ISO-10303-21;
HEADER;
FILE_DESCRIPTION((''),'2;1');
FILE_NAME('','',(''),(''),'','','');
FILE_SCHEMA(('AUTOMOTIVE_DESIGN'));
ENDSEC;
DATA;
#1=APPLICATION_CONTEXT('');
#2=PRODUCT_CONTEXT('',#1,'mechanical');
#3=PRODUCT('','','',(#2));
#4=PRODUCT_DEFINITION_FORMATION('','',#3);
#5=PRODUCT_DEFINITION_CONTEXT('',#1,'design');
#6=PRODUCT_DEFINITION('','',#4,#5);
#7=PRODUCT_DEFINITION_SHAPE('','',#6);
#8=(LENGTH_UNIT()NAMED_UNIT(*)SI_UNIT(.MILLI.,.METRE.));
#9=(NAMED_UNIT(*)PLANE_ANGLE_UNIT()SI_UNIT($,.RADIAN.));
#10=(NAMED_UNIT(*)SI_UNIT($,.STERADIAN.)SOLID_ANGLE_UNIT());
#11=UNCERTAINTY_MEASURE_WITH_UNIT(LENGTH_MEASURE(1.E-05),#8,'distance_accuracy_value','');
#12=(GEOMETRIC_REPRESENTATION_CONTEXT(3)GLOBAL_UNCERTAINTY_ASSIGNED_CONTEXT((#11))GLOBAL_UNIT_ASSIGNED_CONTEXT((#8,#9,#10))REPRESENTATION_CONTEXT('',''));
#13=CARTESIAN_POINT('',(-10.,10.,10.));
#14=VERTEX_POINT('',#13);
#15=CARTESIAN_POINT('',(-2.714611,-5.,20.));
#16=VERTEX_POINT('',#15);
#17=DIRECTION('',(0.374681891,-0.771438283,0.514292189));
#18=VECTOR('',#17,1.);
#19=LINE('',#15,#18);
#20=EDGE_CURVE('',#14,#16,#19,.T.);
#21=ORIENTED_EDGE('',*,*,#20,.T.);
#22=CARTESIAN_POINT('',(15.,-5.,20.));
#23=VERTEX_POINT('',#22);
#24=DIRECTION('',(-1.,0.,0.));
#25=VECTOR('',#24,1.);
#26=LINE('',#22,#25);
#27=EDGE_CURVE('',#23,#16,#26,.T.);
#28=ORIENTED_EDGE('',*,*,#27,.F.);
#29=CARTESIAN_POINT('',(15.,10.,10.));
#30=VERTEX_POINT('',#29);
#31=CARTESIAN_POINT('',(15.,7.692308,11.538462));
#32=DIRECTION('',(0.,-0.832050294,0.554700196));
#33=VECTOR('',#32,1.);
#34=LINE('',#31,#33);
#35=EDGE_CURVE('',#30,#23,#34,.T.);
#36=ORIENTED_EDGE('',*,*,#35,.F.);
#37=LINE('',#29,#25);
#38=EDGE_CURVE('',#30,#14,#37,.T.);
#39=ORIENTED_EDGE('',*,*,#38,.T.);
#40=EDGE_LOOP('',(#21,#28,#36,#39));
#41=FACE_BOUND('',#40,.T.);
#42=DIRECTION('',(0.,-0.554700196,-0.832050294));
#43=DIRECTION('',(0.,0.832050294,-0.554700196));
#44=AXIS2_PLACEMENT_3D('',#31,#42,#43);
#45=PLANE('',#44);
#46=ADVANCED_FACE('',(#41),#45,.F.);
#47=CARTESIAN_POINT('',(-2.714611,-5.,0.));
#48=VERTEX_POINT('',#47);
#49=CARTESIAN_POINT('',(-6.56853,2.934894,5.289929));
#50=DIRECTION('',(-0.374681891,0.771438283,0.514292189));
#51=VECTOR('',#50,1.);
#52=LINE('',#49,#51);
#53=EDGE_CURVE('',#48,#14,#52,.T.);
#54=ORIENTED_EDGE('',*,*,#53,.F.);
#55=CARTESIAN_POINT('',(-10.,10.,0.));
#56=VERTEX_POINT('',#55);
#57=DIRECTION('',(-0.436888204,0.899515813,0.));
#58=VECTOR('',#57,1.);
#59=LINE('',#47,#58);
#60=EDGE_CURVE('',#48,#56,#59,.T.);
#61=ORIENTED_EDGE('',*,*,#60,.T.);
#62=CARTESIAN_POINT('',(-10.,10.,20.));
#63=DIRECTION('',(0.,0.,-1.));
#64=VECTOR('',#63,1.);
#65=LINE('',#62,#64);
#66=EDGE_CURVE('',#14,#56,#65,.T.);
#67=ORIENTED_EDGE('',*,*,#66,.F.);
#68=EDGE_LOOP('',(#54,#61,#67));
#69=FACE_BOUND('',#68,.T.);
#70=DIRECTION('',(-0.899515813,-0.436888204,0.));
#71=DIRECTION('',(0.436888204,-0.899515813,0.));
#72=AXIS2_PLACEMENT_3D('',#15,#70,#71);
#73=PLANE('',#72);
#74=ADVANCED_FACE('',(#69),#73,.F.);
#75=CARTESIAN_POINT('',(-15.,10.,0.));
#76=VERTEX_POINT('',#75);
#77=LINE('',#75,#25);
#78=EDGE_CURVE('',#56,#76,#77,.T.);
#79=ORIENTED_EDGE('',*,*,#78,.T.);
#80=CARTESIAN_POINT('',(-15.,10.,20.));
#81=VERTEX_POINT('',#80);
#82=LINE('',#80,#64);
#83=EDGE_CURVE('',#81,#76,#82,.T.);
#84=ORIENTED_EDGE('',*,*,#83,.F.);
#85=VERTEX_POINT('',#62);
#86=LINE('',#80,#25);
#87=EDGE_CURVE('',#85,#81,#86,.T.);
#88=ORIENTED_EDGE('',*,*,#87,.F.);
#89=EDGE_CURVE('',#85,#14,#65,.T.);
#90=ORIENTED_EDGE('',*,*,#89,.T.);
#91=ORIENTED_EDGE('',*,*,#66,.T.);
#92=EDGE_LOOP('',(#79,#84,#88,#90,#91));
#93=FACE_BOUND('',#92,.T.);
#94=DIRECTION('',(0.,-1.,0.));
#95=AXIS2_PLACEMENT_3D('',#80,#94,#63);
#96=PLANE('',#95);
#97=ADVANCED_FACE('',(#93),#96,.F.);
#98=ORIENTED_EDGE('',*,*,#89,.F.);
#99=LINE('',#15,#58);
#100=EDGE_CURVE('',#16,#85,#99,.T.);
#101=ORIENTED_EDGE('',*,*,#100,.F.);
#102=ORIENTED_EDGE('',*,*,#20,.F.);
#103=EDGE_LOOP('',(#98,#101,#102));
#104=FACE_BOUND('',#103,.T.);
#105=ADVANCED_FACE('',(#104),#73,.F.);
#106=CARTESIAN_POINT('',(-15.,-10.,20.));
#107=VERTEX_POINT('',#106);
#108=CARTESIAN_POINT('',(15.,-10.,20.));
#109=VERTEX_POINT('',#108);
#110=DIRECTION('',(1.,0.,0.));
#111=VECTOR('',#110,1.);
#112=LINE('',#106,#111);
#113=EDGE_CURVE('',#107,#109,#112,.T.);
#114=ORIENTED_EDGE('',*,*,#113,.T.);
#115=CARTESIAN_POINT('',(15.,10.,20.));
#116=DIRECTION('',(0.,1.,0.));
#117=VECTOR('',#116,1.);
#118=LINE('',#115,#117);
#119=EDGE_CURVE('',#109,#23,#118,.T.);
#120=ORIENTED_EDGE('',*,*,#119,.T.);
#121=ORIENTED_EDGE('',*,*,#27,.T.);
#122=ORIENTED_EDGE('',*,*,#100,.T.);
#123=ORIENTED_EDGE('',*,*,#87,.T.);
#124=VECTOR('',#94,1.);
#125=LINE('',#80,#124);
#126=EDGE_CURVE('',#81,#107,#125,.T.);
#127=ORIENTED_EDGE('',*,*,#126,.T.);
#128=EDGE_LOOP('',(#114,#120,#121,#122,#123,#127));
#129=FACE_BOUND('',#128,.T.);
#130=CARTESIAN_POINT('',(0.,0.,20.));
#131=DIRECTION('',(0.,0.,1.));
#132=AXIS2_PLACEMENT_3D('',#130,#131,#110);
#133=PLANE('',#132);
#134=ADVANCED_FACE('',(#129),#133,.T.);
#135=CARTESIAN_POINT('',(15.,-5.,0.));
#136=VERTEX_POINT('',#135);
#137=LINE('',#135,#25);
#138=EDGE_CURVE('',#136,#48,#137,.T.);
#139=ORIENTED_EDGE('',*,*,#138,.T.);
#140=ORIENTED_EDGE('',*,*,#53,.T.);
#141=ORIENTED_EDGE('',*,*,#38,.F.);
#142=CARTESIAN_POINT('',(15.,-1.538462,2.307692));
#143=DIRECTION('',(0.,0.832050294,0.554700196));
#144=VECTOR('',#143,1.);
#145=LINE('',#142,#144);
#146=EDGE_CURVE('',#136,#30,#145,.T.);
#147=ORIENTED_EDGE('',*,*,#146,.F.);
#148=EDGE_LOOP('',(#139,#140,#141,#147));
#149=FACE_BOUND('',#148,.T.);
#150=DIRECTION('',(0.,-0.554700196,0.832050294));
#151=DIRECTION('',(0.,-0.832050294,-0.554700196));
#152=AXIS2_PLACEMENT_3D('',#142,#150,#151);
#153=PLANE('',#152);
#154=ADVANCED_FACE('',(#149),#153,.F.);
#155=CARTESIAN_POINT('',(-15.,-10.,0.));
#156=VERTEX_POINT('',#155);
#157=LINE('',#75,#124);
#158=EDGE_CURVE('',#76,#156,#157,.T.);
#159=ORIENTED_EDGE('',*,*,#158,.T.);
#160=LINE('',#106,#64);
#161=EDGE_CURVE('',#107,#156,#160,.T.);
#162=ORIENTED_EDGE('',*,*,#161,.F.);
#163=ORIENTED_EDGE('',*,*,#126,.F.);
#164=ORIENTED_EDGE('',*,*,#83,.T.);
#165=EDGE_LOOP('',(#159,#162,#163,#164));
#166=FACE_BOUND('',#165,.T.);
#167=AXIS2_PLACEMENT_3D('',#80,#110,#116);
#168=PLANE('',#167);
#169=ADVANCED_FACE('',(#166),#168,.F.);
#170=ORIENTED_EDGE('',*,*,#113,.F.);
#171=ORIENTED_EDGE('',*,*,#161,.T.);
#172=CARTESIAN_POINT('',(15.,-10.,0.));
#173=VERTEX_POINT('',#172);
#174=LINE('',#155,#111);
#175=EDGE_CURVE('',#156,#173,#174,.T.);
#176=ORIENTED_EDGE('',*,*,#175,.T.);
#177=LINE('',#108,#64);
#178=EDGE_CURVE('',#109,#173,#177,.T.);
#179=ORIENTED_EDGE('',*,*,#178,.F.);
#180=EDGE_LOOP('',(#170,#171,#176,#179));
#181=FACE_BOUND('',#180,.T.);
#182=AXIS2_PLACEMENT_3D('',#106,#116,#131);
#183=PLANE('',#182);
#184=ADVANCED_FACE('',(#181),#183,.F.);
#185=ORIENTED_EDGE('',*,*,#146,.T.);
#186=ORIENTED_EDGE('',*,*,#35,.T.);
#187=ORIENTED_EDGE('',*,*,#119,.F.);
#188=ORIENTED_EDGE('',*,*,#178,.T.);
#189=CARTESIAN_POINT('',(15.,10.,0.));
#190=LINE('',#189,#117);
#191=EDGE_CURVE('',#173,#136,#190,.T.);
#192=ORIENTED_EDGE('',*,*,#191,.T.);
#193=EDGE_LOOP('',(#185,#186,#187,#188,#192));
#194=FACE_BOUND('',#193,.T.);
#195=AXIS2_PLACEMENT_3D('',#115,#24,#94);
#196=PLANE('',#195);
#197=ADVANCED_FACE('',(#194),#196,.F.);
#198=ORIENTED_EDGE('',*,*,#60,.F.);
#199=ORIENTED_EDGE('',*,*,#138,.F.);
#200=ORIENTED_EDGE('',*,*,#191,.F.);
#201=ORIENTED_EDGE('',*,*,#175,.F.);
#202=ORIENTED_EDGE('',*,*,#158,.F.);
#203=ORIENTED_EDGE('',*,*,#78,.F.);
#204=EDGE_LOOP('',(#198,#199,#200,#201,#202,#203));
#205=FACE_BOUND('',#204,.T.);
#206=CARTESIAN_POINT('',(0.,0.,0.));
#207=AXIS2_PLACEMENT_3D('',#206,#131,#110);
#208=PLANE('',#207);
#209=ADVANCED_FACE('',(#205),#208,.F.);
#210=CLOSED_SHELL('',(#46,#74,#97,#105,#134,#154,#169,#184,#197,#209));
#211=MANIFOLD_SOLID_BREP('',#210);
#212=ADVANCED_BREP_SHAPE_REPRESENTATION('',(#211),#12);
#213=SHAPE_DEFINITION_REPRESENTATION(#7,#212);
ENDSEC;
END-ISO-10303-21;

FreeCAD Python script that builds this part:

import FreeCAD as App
import Part
import Sketcher
Q = App.Units.Quantity

doc = App.newDocument("Part")
body = doc.addObject("PartDesign::Body", "Body")

# Sketch on XY plane
sketch1 = doc.addObject("Sketcher::SketchObject", "Sketch")
body.addObject(sketch1)
sketch1.AttachmentSupport = (doc.XY_Plane, [""])
sketch1.MapMode = "FlatFace"
sketch1.addGeometry([
    Part.LineSegment(App.Vector(-15, 10, 0), App.Vector(-15, -10, 0)),
    Part.LineSegment(App.Vector(-15, -10, 0), App.Vector(15, -10, 0)),
    Part.LineSegment(App.Vector(15, -10, 0), App.Vector(15, 10, 0)),
    Part.LineSegment(App.Vector(15, 10, 0), App.Vector(-15, 10, 0)),
], False)
sketch1.addConstraint([
    Sketcher.Constraint("Coincident", 0, 2, 1, 1),
    Sketcher.Constraint("Coincident", 1, 2, 2, 1),
    Sketcher.Constraint("Coincident", 2, 2, 3, 1),
    Sketcher.Constraint("Coincident", 3, 2, 0, 1),
    Sketcher.Constraint("Vertical", 0),
    Sketcher.Constraint("Horizontal", 1),
    Sketcher.Constraint("Vertical", 2),
    Sketcher.Constraint("Horizontal", 3),
    Sketcher.Constraint("Symmetric", 0, 2, 2, 2, -1, 1),
    Sketcher.Constraint("DistanceX", 1, 1, 1, 2, Q("30 mm")),
    Sketcher.Constraint("DistanceY", 0, 2, 0, 1, Q("20 mm")),
])
pad1 = doc.addObject("PartDesign::Pad", "Pad")
body.addObject(pad1)
pad1.Profile = sketch1
pad1.Length = 20

# Sketch on XY plane
sketch2 = doc.addObject("Sketcher::SketchObject", "Sketch001")
body.addObject(sketch2)
sketch2.AttachmentSupport = (doc.XY_Plane, [""])
sketch2.MapMode = "FlatFace"
sketch2.addGeometry([
    Part.LineSegment(App.Vector(15, -5, 0), App.Vector(-2.714611, -5, 0)),
    Part.LineSegment(App.Vector(-2.714611, -5, 0), App.Vector(-10, 10, 0)),
    Part.LineSegment(App.Vector(-10, 10, 0), App.Vector(15, 10, 0)),
    Part.LineSegment(App.Vector(15, 10, 0), App.Vector(15, -5, 0)),
], False)
sketch2.addConstraint([
    Sketcher.Constraint("Coincident", 0, 2, 1, 1),
    Sketcher.Constraint("Coincident", 1, 2, 2, 1),
    Sketcher.Constraint("Coincident", 2, 2, 3, 1),
    Sketcher.Constraint("Coincident", 3, 2, 0, 1),
    Sketcher.Constraint("Horizontal", 0),
    Sketcher.Constraint("Horizontal", 2),
    Sketcher.Constraint("Vertical", 3),
    Sketcher.Constraint("DistanceX", 2, 1, 2, 2, Q("25 mm")),
    Sketcher.Constraint("DistanceY", 3, 2, 3, 1, Q("15 mm")),
    Sketcher.Constraint("DistanceY", 0, 2, -1, 1, Q("5 mm")),
    Sketcher.Constraint("DistanceX", 1, 2, -1, 1, Q("10 mm")),
    Sketcher.Constraint("DistanceX", 0, 2, 0, 1, Q("17.714611 mm")),
])
pocket1 = doc.addObject("PartDesign::Pocket", "Pocket")
body.addObject(pocket1)
pocket1.Profile = sketch2
pocket1.Type = "ThroughAll"
pocket1.Reversed = True

# Sketch on YZ plane
sketch3 = doc.addObject("Sketcher::SketchObject", "Sketch002")
body.addObject(sketch3)
sketch3.AttachmentSupport = (doc.YZ_Plane, [""])
sketch3.MapMode = "FlatFace"
sketch3.AttachmentOffset = App.Placement(App.Vector(0, 0, -15), App.Rotation())
sketch3.addGeometry([
    Part.LineSegment(App.Vector(10, 10, 0), App.Vector(-5, 0, 0)),
    Part.LineSegment(App.Vector(-5, 0, 0), App.Vector(-5, 20, 0)),
    Part.LineSegment(App.Vector(-5, 20, 0), App.Vector(10, 10, 0)),
], False)
sketch3.addConstraint([
    Sketcher.Constraint("Coincident", 0, 2, 1, 1),
    Sketcher.Constraint("Coincident", 1, 2, 2, 1),
    Sketcher.Constraint("Coincident", 2, 2, 0, 1),
    Sketcher.Constraint("Vertical", 1),
    Sketcher.Constraint("PointOnObject", 0, 2, -1),
    Sketcher.Constraint("Equal", 0, 2),
    Sketcher.Constraint("DistanceY", 1, 1, 1, 2, Q("20 mm")),
    Sketcher.Constraint("DistanceX", 0, 2, -1, 1, Q("5 mm")),
    Sketcher.Constraint("DistanceX", -1, 1, 2, 2, Q("10 mm")),
])
pad2 = doc.addObject("PartDesign::Pad", "Pad001")
body.addObject(pad2)
pad2.Profile = sketch3
pad2.Length = 30

doc.recompute()
